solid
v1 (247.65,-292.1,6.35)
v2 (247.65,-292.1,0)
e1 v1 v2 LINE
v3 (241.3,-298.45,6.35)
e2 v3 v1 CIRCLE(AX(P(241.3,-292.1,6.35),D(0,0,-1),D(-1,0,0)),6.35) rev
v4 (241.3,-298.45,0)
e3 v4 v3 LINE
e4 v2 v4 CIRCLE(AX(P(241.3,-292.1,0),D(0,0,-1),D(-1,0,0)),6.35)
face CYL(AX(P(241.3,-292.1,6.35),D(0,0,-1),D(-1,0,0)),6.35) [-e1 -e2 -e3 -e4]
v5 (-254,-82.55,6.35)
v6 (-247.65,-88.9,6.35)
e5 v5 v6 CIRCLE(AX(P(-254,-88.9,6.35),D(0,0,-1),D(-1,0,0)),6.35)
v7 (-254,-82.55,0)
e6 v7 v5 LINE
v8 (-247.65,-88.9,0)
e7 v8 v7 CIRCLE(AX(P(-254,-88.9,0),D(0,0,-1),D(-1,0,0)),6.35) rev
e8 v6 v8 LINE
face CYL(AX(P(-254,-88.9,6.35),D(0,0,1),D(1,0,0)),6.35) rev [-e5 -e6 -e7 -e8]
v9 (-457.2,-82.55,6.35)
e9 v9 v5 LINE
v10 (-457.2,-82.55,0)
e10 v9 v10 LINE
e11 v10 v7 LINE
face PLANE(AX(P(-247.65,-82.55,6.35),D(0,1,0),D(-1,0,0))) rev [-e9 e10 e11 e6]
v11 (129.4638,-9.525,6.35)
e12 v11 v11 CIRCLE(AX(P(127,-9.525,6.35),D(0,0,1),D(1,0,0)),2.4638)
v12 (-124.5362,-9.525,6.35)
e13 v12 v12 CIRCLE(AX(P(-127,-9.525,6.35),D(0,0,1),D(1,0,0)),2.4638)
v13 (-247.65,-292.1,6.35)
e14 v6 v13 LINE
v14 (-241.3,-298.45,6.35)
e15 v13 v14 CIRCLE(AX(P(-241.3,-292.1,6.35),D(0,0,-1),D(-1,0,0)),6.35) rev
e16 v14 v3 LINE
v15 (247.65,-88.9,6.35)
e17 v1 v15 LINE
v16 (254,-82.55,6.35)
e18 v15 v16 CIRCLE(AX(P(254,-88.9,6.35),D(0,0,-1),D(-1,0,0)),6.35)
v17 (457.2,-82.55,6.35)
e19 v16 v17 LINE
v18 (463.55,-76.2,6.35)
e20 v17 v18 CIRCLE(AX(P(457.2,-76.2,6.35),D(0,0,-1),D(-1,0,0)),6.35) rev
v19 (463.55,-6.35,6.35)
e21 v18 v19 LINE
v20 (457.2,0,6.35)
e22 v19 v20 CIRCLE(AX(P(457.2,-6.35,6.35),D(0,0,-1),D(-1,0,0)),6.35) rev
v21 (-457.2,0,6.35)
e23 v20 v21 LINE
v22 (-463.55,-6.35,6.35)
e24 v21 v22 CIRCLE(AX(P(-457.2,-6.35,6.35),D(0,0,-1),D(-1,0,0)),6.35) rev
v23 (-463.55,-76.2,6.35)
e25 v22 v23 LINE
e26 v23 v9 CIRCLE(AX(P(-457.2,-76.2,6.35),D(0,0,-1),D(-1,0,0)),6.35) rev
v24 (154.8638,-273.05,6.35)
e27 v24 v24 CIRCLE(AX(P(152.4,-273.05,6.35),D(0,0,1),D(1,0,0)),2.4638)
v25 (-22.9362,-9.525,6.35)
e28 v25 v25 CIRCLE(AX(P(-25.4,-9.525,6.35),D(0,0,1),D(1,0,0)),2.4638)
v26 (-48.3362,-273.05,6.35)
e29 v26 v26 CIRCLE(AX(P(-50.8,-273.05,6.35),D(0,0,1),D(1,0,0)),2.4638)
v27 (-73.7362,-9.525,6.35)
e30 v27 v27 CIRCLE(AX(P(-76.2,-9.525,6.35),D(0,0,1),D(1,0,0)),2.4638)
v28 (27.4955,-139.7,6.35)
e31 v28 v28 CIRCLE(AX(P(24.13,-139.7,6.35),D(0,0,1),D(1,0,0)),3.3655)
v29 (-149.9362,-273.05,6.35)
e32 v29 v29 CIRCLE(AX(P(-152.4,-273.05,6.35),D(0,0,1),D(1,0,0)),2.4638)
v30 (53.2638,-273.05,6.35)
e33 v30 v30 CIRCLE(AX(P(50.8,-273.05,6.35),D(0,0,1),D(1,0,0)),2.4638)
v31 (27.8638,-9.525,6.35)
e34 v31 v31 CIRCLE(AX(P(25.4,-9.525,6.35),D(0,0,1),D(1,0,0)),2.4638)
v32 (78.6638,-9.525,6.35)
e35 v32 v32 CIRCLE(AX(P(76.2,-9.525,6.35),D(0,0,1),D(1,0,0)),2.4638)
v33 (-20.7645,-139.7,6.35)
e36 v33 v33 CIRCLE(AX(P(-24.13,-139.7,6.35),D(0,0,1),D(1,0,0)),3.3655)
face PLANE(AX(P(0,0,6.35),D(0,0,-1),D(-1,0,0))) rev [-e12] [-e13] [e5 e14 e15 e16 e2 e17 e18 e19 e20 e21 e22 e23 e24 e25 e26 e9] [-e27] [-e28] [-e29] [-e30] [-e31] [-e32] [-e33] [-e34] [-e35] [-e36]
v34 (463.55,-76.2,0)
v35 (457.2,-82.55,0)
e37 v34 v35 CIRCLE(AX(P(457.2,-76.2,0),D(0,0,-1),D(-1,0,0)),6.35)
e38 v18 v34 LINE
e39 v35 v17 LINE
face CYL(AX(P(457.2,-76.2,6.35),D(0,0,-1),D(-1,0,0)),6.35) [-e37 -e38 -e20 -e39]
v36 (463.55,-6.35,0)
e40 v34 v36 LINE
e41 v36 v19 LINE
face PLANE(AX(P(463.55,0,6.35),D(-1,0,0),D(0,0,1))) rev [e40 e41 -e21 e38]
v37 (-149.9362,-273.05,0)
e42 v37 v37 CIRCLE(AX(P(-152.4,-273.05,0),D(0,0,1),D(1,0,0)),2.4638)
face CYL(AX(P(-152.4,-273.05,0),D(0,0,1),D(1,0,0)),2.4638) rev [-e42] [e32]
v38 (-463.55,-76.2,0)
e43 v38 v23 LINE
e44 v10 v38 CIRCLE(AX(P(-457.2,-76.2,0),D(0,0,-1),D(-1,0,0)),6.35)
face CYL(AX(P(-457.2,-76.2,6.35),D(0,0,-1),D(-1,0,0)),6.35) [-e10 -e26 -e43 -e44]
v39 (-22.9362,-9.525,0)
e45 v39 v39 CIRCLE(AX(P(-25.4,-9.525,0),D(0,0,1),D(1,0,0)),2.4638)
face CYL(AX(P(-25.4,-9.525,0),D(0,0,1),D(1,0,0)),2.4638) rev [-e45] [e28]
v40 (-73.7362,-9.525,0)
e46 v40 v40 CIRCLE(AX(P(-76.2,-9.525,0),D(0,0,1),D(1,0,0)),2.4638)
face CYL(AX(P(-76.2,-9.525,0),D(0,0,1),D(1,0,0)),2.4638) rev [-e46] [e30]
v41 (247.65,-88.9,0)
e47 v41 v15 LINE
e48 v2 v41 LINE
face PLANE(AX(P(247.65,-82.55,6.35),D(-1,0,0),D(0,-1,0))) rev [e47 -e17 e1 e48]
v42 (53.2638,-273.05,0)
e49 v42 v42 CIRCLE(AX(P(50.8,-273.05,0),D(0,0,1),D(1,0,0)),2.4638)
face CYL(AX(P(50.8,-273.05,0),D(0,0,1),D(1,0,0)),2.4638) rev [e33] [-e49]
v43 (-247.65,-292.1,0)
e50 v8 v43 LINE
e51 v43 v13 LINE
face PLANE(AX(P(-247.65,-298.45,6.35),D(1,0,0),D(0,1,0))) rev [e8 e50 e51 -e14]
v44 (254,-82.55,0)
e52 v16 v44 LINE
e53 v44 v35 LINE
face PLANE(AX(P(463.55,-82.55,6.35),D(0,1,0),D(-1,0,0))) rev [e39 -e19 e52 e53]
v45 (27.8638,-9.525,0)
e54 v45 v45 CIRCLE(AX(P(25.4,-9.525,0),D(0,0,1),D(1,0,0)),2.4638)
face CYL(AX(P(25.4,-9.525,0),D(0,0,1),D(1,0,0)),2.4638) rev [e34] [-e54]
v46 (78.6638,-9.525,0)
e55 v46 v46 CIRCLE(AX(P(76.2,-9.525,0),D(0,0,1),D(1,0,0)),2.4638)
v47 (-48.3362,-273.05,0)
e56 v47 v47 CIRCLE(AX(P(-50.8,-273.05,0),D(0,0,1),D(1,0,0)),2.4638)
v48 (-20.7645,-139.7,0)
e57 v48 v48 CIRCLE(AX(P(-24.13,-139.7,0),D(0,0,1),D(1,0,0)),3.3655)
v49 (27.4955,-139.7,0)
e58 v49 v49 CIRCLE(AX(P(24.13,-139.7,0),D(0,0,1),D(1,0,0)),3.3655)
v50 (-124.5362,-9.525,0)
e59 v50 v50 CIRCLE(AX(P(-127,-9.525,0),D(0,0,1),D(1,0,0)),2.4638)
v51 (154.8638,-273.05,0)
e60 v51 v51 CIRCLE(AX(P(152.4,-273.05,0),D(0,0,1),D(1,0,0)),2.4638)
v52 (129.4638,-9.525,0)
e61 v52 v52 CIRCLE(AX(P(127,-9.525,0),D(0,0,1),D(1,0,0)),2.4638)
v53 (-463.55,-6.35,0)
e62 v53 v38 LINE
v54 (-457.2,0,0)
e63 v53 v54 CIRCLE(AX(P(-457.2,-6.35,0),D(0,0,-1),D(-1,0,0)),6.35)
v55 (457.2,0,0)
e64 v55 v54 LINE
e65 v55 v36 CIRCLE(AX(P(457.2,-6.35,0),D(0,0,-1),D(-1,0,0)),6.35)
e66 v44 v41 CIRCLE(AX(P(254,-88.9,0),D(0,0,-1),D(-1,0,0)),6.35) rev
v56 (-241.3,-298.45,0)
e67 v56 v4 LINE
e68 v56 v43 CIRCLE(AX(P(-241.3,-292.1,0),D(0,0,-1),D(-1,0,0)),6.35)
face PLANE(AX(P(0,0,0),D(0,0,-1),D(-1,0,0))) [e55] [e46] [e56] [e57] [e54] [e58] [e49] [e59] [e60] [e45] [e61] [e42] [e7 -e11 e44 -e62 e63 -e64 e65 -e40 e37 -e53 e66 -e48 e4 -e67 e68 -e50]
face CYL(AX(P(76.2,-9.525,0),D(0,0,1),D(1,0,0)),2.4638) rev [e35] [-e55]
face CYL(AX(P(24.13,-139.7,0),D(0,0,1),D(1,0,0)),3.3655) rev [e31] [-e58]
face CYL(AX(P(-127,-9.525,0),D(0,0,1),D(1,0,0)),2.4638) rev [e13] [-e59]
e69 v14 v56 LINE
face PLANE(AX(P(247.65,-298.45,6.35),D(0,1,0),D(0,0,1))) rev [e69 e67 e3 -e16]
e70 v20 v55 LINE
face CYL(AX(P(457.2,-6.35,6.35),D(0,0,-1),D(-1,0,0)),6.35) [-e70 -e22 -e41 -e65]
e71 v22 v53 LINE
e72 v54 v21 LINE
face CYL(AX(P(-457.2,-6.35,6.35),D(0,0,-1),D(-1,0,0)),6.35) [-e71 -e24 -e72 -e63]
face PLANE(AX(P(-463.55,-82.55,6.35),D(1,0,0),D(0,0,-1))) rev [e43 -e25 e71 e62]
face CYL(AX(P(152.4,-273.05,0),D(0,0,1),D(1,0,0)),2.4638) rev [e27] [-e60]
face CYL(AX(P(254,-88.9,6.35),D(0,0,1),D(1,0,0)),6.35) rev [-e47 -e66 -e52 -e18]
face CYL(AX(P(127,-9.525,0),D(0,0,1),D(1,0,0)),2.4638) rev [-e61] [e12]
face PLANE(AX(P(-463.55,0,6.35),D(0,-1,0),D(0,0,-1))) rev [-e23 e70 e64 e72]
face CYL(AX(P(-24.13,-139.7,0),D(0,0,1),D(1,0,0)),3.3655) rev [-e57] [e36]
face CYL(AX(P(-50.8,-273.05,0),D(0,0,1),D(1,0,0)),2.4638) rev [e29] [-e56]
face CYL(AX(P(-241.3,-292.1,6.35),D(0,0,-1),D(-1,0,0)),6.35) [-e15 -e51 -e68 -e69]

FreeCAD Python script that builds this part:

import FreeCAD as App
import Part
import Sketcher
from FreeCAD import Vector
Q = App.Units.Quantity


def edges_at(feature, points):
    """Names of the edges that pass closest to the given points."""
    edges = feature.Shape.Edges
    near = lambda p: min(range(len(edges)), key=lambda i: edges[i].distToShape(Part.Vertex(*p))[0])
    return sorted({f"Edge{near(p) + 1}" for p in points})


def add_polygon(sketch, points):
    """Adds a closed chain of lines whose ends are joined by coincident constraints."""
    first, n = sketch.GeometryCount, len(points)
    for a, b in zip(points, points[1:] + points[:1]):
        sketch.addGeometry(Part.LineSegment(App.Vector(*a, 0), App.Vector(*b, 0)), False)
    for i in range(n):
        sketch.addConstraint(Sketcher.Constraint("Coincident", first + i, 2, first + (i + 1) % n, 1))

doc = App.newDocument("Part")
params = doc.addObject("Spreadsheet::Sheet", "Params")
for row, (alias, value) in enumerate([
    ("sketch1_width", "8.5 in"),
    ("sketch1_width2", "19.5 in"),
    ("sketch1_height", "3.25 in"),
    ("pad1_length", "0.25 in"),
    ("sketch2_diameter", "0.194 in"),
    ("linearpattern_pitch", "2 in"),
    ("sketch3_diameter", "0.194 in"),
    ("linearpattern2_pitch", "4 in"),
    ("sketch4_diameter", "0.265 in"),
    ("fillet_radius", "0.25 in"),
], start=1):
    params.set(f"A{row}", alias)
    params.set(f"B{row}", "=" + value)
    params.setAlias(f"B{row}", alias)

body = doc.addObject("PartDesign::Body", "Body")

# Sketch on XY plane
sketch1 = body.newObject("Sketcher::SketchObject", "Sketch")
sketch1.AttachmentSupport = (doc.getObject("XY_Plane"), [""])
sketch1.MapMode = "FlatFace"
add_polygon(sketch1, [(-464, 0), (-464, -83), (-248, -83), (-248, -298), (248, -298), (248, -83), (464, -83), (464, 0)])  # lines 0-7
sketch1.addConstraint([
    Sketcher.Constraint("Vertical", 0),
    Sketcher.Constraint("Horizontal", 1),
    Sketcher.Constraint("Vertical", 2),
    Sketcher.Constraint("Horizontal", 3),
    Sketcher.Constraint("Vertical", 4),
    Sketcher.Constraint("Horizontal", 5),
    Sketcher.Constraint("Vertical", 6),
    Sketcher.Constraint("Horizontal", 7),
    Sketcher.Constraint("Symmetric", 6, 2, 7, 2, -1, 1),
    Sketcher.Constraint("Symmetric", 1, 2, 4, 2, -2),
    Sketcher.Constraint("Equal", 5, 2),
    Sketcher.Constraint("DistanceX", 1, 1, 1, 2, Q("8.5 in")),
    Sketcher.Constraint("DistanceX", 3, 1, 3, 2, Q("19.5 in")),
    Sketcher.Constraint("DistanceY", 0, 2, 0, 1, Q("3.25 in")),
])
sketch1.setExpression("Constraints[19]", "Params.sketch1_width")
sketch1.setExpression("Constraints[20]", "Params.sketch1_width2")
sketch1.setExpression("Constraints[21]", "Params.sketch1_height")
pad1 = body.newObject("PartDesign::Pad", "Pad")
pad1.Profile = sketch1
pad1.setExpression("Length", "Params.pad1_length")

# Sketch on XY plane
sketch2 = body.newObject("Sketcher::SketchObject", "Sketch001")
sketch2.AttachmentSupport = (doc.getObject("XY_Plane"), [""])
sketch2.MapMode = "FlatFace"
sketch2.AttachmentOffset = App.Placement(Vector(0, 0, 0.25 * 25.4), App.Rotation())
sketch2.addGeometry(Part.Circle(Vector(127, -9.5, 0), Vector(0, 0, 1), 2.5), False)
sketch2.addConstraint([
    Sketcher.Constraint("Diameter", 0, Q("0.194 in")),
    Sketcher.Constraint("DistanceX", -1, 1, 0, 3, Q("5 in")),
    Sketcher.Constraint("DistanceY", 0, 3, -1, 1, Q("0.375 in")),
])
sketch2.setExpression("Constraints[0]", "Params.sketch2_diameter")
pocket1 = body.newObject("PartDesign::Pocket", "Pocket")
pocket1.Profile = sketch2
pocket1.Type = "ThroughAll"
doc.recompute()

linearpattern = body.newObject("PartDesign::LinearPattern", "LinearPattern")
linearpattern.Originals = [pocket1]
linearpattern.Direction = (doc.getObject("X_Axis"), [""])
linearpattern.Mode = "offset"
linearpattern.setExpression("Offset", "Params.linearpattern_pitch")
linearpattern.Occurrences = 6
linearpattern.Reversed = True
body.Tip = linearpattern

# Sketch on XY plane
sketch3 = body.newObject("Sketcher::SketchObject", "Sketch002")
sketch3.AttachmentSupport = (doc.getObject("XY_Plane"), [""])
sketch3.MapMode = "FlatFace"
sketch3.AttachmentOffset = App.Placement(Vector(0, 0, 0.25 * 25.4), App.Rotation())
sketch3.addGeometry(Part.Circle(Vector(-152.4, -273.1, 0), Vector(0, 0, 1), 2.5), False)
sketch3.addConstraint([
    Sketcher.Constraint("Diameter", 0, Q("0.194 in")),
    Sketcher.Constraint("DistanceX", 0, 3, -1, 1, Q("6 in")),
    Sketcher.Constraint("DistanceY", 0, 3, -1, 1, Q("10.75 in")),
])
sketch3.setExpression("Constraints[0]", "Params.sketch3_diameter")
pocket2 = body.newObject("PartDesign::Pocket", "Pocket001")
pocket2.Profile = sketch3
pocket2.Type = "ThroughAll"
doc.recompute()

linearpattern2 = body.newObject("PartDesign::LinearPattern", "LinearPattern001")
linearpattern2.Originals = [pocket2]
linearpattern2.Direction = (doc.getObject("X_Axis"), [""])
linearpattern2.Mode = "offset"
linearpattern2.setExpression("Offset", "Params.linearpattern2_pitch")
linearpattern2.Occurrences = 4
body.Tip = linearpattern2

# Sketch on XY plane
sketch4 = body.newObject("Sketcher::SketchObject", "Sketch003")
sketch4.AttachmentSupport = (doc.getObject("XY_Plane"), [""])
sketch4.MapMode = "FlatFace"
sketch4.AttachmentOffset = App.Placement(Vector(0, 0, 0.25 * 25.4), App.Rotation())
sketch4.addGeometry([
    Part.Circle(Vector(-24.1, -139.7, 0), Vector(0, 0, 1), 3.4),
    Part.Circle(Vector(24.1, -139.7, 0), Vector(0, 0, 1), 3.4),
], False)
sketch4.addConstraint([
    Sketcher.Constraint("Equal", 0, 1),
    Sketcher.Constraint("Symmetric", 0, 3, 1, 3, -2),
    Sketcher.Constraint("Diameter", 0, Q("0.265 in")),
    Sketcher.Constraint("DistanceY", 0, 3, -1, 1, Q("5.5 in")),
    Sketcher.Constraint("DistanceX", 0, 3, 1, 3, Q("1.9 in")),
])
sketch4.setExpression("Constraints[2]", "Params.sketch4_diameter")
pocket3 = body.newObject("PartDesign::Pocket", "Pocket002")
pocket3.Profile = sketch4
pocket3.Type = "ThroughAll"
doc.recompute()

fillet = body.newObject("PartDesign::Fillet", "Fillet")
fillet.Base = (pocket3, edges_at(pocket3, [
    (-463.55, -82.55, 3.175),
    (-463.55, 0, 3.175),
    (463.55, 0, 3.175),
    (463.55, -82.55, 3.175),
    (247.65, -82.55, 3.175),
    (247.65, -298.45, 3.175),
    (-247.65, -298.45, 3.175),
    (-247.65, -82.55, 3.175),
]))
fillet.setExpression("Radius", "Params.fillet_radius")

doc.recompute()
